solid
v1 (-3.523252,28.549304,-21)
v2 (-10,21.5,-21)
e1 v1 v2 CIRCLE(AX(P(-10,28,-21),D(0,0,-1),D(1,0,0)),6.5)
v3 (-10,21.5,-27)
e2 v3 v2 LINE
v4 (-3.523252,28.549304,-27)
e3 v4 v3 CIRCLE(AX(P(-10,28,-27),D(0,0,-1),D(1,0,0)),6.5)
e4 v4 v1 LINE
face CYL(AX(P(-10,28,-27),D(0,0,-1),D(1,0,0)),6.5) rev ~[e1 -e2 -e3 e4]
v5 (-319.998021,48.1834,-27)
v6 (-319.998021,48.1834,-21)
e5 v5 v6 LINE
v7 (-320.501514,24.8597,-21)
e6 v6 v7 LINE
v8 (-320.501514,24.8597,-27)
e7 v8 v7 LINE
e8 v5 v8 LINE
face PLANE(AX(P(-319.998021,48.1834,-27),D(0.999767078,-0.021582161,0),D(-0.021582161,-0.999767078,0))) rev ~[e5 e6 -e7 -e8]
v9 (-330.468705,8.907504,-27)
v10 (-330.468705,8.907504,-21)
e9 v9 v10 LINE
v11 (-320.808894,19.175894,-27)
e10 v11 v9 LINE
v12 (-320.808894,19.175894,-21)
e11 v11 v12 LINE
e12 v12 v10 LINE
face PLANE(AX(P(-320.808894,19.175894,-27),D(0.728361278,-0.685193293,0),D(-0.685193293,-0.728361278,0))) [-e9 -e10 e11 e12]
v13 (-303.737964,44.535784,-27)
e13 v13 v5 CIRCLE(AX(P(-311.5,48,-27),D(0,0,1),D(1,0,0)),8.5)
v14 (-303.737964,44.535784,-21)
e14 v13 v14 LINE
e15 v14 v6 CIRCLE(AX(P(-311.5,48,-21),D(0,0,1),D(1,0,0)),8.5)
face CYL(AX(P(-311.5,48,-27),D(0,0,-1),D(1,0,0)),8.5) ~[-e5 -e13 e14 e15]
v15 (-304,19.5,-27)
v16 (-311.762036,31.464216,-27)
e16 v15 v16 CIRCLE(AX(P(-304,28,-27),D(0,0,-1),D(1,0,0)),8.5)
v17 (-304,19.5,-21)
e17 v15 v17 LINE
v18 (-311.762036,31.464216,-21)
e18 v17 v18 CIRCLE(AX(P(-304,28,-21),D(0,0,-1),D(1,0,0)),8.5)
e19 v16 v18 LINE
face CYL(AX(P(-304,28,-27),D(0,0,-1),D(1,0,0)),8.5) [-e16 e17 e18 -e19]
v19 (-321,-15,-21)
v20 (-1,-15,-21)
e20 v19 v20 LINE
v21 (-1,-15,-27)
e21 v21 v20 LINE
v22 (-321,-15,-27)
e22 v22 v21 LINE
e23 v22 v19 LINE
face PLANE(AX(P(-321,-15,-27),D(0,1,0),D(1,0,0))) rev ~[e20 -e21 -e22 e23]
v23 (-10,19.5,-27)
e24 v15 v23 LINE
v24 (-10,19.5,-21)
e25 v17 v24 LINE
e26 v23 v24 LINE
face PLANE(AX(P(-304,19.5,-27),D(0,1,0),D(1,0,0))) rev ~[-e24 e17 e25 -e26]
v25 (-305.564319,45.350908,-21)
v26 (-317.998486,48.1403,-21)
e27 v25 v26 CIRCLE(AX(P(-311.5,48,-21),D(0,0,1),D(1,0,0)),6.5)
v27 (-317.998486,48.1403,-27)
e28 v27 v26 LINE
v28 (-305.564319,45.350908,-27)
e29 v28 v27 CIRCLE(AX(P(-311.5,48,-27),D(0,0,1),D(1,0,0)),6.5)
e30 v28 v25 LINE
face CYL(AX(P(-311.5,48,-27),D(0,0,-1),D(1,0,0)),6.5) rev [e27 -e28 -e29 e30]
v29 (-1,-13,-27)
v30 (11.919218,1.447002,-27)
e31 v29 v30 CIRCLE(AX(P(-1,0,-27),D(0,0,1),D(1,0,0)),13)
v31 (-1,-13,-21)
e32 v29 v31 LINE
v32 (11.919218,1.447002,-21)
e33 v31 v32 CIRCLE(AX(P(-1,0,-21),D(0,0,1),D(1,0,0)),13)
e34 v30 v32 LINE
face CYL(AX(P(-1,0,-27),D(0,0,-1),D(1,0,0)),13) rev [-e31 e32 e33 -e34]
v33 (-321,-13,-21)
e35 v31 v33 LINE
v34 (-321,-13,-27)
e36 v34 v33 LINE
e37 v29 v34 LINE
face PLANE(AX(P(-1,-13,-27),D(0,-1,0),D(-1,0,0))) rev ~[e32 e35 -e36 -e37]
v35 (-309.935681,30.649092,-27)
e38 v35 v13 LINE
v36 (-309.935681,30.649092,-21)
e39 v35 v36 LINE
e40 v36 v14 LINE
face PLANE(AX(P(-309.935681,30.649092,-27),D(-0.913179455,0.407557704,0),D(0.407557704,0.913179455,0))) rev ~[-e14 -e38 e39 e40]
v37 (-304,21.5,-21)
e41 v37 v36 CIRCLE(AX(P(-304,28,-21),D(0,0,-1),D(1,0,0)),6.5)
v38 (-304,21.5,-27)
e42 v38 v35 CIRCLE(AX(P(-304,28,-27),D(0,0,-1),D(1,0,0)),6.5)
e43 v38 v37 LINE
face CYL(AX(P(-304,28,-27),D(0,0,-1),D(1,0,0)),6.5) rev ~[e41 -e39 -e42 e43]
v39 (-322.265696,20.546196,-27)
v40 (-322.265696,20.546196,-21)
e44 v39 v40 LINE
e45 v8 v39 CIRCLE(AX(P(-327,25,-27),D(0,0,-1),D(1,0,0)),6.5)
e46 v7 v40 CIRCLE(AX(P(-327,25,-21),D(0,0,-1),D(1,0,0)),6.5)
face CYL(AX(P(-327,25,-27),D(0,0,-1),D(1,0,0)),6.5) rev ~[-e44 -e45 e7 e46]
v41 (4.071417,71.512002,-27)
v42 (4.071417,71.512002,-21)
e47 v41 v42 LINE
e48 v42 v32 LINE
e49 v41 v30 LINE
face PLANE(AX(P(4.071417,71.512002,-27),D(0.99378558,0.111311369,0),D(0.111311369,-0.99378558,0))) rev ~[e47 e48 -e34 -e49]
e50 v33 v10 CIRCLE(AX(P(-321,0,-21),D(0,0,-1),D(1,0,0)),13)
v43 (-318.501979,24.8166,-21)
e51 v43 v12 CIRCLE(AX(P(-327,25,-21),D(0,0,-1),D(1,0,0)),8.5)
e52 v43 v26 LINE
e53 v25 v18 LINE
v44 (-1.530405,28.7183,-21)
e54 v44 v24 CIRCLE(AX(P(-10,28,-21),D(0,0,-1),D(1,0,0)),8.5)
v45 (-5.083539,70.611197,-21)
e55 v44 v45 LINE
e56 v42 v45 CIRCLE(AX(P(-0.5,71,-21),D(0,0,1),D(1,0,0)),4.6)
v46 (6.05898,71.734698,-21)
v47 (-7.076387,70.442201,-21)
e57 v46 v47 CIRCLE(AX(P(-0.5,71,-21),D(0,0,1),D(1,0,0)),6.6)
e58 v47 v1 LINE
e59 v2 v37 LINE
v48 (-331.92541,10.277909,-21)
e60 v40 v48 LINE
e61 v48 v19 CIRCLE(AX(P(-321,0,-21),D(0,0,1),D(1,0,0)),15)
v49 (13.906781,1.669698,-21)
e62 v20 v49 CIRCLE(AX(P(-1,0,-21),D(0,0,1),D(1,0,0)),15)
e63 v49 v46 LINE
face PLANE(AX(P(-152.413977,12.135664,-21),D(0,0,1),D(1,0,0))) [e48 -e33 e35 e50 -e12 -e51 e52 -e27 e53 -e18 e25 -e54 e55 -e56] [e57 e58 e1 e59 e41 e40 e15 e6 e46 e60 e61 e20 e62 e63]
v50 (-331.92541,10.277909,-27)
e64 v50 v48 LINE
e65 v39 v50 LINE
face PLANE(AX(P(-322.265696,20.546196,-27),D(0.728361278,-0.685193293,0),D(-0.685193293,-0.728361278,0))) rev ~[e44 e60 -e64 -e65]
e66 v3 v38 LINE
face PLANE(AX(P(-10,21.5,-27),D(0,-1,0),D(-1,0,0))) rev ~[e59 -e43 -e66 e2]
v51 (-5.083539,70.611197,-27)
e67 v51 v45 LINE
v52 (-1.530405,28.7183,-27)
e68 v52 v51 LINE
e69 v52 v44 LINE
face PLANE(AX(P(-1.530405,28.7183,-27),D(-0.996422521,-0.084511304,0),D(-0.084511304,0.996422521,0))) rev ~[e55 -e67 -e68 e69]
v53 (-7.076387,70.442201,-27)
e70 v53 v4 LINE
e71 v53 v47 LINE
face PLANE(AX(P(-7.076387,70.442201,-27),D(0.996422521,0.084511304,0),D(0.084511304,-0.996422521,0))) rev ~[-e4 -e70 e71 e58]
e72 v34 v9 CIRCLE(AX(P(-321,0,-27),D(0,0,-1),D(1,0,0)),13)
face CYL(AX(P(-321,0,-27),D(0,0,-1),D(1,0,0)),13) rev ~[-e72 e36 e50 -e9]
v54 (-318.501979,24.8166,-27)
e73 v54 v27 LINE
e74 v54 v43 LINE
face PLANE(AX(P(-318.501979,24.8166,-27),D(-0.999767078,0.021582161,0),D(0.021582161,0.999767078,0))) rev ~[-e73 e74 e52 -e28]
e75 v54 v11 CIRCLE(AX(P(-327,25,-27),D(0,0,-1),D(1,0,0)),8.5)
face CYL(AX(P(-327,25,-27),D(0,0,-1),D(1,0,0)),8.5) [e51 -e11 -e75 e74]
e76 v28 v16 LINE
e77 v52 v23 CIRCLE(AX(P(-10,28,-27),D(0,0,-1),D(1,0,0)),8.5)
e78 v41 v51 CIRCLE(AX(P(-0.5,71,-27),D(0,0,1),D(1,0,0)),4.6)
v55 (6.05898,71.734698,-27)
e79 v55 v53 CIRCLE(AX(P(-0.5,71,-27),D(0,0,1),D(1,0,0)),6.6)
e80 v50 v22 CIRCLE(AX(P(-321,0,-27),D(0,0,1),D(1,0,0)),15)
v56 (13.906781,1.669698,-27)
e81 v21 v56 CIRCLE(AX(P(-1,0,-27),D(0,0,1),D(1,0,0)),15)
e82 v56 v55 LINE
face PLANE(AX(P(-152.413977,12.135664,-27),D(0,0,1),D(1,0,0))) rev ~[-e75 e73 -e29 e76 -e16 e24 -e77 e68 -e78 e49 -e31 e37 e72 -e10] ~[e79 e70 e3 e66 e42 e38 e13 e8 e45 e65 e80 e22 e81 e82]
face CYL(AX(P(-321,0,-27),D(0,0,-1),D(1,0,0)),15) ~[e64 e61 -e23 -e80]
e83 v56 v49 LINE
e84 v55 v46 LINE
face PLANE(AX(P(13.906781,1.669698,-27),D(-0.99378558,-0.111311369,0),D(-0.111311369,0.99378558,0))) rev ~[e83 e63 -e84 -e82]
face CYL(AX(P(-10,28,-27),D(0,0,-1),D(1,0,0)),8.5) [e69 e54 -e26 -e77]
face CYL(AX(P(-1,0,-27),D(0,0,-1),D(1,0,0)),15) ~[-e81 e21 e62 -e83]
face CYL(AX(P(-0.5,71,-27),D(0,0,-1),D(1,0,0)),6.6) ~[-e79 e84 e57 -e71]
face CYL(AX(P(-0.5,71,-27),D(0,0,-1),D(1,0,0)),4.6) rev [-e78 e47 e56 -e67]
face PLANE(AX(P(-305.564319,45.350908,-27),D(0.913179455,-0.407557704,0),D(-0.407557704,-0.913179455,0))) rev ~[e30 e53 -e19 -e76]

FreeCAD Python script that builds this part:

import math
import FreeCAD as App
import Part
import Sketcher

V = App.Vector

doc = App.newDocument("Part")
body = doc.addObject("PartDesign::Body", "Body")

# Sketch on XY plane
sketch1 = doc.addObject("Sketcher::SketchObject", "Sketch")
body.addObject(sketch1)
sketch1.AttachmentSupport = (doc.XY_Plane, [""])
sketch1.MapMode = "FlatFace"
sketch1.AttachmentOffset = App.Placement(V(0, 0, -27), App.Rotation())
sketch1.addGeometry(Part.ArcOfCircle(Part.Circle(V(-10, 28, 0), V(0, 0, 1), 6.499952), math.radians(-90), math.radians(4.847752)), False)
sketch1.addGeometry(Part.LineSegment(V(-10, 21.5, 0), V(-304, 21.5, 0)), False)
sketch1.addGeometry(Part.ArcOfCircle(Part.Circle(V(-304, 28, 0), V(0, 0, 1), 6.5), math.radians(155.948817), math.radians(270)), False)
sketch1.addGeometry(Part.LineSegment(V(-309.9357, 30.6491, 0), V(-303.738, 44.5358, 0)), False)
sketch1.addGeometry(Part.ArcOfCircle(Part.Circle(V(-311.5, 48, 0), V(0, 0, 1), 8.49996), math.radians(-24.051326), math.radians(178.76366)), False)
sketch1.addGeometry(Part.LineSegment(V(-319.998, 48.1834, 0), V(-320.5015, 24.8597, 0)), False)
sketch1.addGeometry(Part.ArcOfCircle(Part.Circle(V(-327, 25, 0), V(0, 0, 1), 6.500014), math.radians(-43.251382), math.radians(-1.236801)), False)
sketch1.addGeometry(Part.LineSegment(V(-322.2657, 20.5462, 0), V(-331.9254, 10.2779, 0)), False)
sketch1.addGeometry(Part.ArcOfCircle(Part.Circle(V(-321, 0, 0), V(0, 0, 1), 14.999986), math.radians(136.749138), math.radians(270)), False)
sketch1.addGeometry(Part.LineSegment(V(-321, -15, 0), V(-1, -15, 0)), False)
sketch1.addGeometry(Part.ArcOfCircle(Part.Circle(V(-1, 0, 0), V(0, 0, 1), 15), math.radians(-90), math.radians(6.391021)), False)
sketch1.addGeometry(Part.LineSegment(V(13.9068, 1.6697, 0), V(6.059, 71.7347, 0)), False)
sketch1.addGeometry(Part.ArcOfCircle(Part.Circle(V(-0.5, 71, 0), V(0, 0, 1), 6.60002), math.radians(6.391289), math.radians(184.848135)), False)
sketch1.addGeometry(Part.LineSegment(V(-7.0764, 70.4422, 0), V(-3.5233, 28.5493, 0)), False)
sketch1.addGeometry(Part.ArcOfCircle(Part.Circle(V(-304, 28, 0), V(0, 0, 1), 8.5), math.radians(155.948674), math.radians(270)), False)
sketch1.addGeometry(Part.LineSegment(V(-304, 19.5, 0), V(-10, 19.5, 0)), False)
sketch1.addGeometry(Part.ArcOfCircle(Part.Circle(V(-10, 28, 0), V(0, 0, 1), 8.500005), math.radians(-90), math.radians(4.847609)), False)
sketch1.addGeometry(Part.LineSegment(V(-1.5304, 28.7183, 0), V(-5.0835, 70.6112, 0)), False)
sketch1.addGeometry(Part.ArcOfCircle(Part.Circle(V(-0.5, 71, 0), V(0, 0, 1), 4.599983), math.radians(6.390535), math.radians(184.848565)), False)
sketch1.addGeometry(Part.LineSegment(V(4.0714, 71.512, 0), V(11.9192, 1.447, 0)), False)
sketch1.addGeometry(Part.ArcOfCircle(Part.Circle(V(-1, 0, 0), V(0, 0, 1), 13), math.radians(-90), math.radians(6.390713)), False)
sketch1.addGeometry(Part.LineSegment(V(-1, -13, 0), V(-321, -13, 0)), False)
sketch1.addGeometry(Part.ArcOfCircle(Part.Circle(V(-321, 0, 0), V(0, 0, 1), 13), math.radians(136.749241), math.radians(270)), False)
sketch1.addGeometry(Part.LineSegment(V(-330.4687, 8.9075, 0), V(-320.8089, 19.1759, 0)), False)
sketch1.addGeometry(Part.ArcOfCircle(Part.Circle(V(-327, 25, 0), V(0, 0, 1), 8.499979), math.radians(-43.250465), math.radians(-1.23634)), False)
sketch1.addGeometry(Part.LineSegment(V(-318.502, 24.8166, 0), V(-317.9985, 48.1403, 0)), False)
sketch1.addGeometry(Part.ArcOfCircle(Part.Circle(V(-311.5, 48, 0), V(0, 0, 1), 6.50002), math.radians(-24.051183), math.radians(178.763199)), False)
sketch1.addGeometry(Part.LineSegment(V(-305.5643, 45.3509, 0), V(-311.762, 31.4642, 0)), False)
sketch1.addConstraint(Sketcher.Constraint("Tangent", 0, 1, 1, 1))
sketch1.addConstraint(Sketcher.Constraint("Tangent", 1, 2, 2, 2))
sketch1.addConstraint(Sketcher.Constraint("Tangent", 2, 1, 3, 1))
sketch1.addConstraint(Sketcher.Constraint("Tangent", 3, 2, 4, 1))
sketch1.addConstraint(Sketcher.Constraint("Tangent", 4, 2, 5, 1))
sketch1.addConstraint(Sketcher.Constraint("Tangent", 5, 2, 6, 2))
sketch1.addConstraint(Sketcher.Constraint("Tangent", 6, 1, 7, 1))
sketch1.addConstraint(Sketcher.Constraint("Tangent", 7, 2, 8, 1))
sketch1.addConstraint(Sketcher.Constraint("Tangent", 8, 2, 9, 1))
sketch1.addConstraint(Sketcher.Constraint("Tangent", 9, 2, 10, 1))
sketch1.addConstraint(Sketcher.Constraint("Tangent", 10, 2, 11, 1))
sketch1.addConstraint(Sketcher.Constraint("Tangent", 11, 2, 12, 1))
sketch1.addConstraint(Sketcher.Constraint("Tangent", 12, 2, 13, 1))
sketch1.addConstraint(Sketcher.Constraint("Tangent", 13, 2, 0, 2))
sketch1.addConstraint(Sketcher.Constraint("Tangent", 14, 2, 15, 1))
sketch1.addConstraint(Sketcher.Constraint("Tangent", 15, 2, 16, 1))
sketch1.addConstraint(Sketcher.Constraint("Tangent", 16, 2, 17, 1))
sketch1.addConstraint(Sketcher.Constraint("Tangent", 17, 2, 18, 2))
sketch1.addConstraint(Sketcher.Constraint("Tangent", 18, 1, 19, 1))
sketch1.addConstraint(Sketcher.Constraint("Tangent", 19, 2, 20, 2))
sketch1.addConstraint(Sketcher.Constraint("Tangent", 20, 1, 21, 1))
sketch1.addConstraint(Sketcher.Constraint("Tangent", 21, 2, 22, 2))
sketch1.addConstraint(Sketcher.Constraint("Tangent", 22, 1, 23, 1))
sketch1.addConstraint(Sketcher.Constraint("Tangent", 23, 2, 24, 1))
sketch1.addConstraint(Sketcher.Constraint("Tangent", 24, 2, 25, 1))
sketch1.addConstraint(Sketcher.Constraint("Tangent", 25, 2, 26, 2))
sketch1.addConstraint(Sketcher.Constraint("Tangent", 26, 1, 27, 1))
sketch1.addConstraint(Sketcher.Constraint("Tangent", 27, 2, 14, 1))
sketch1.addConstraint(Sketcher.Constraint("Horizontal", 1))
sketch1.addConstraint(Sketcher.Constraint("Horizontal", 9))
sketch1.addConstraint(Sketcher.Constraint("Horizontal", 15))
sketch1.addConstraint(Sketcher.Constraint("Horizontal", 21))
sketch1.addConstraint(Sketcher.Constraint("Coincident", 14, 3, 2, 3))
sketch1.addConstraint(Sketcher.Constraint("Coincident", 16, 3, 0, 3))
sketch1.addConstraint(Sketcher.Constraint("Coincident", 18, 3, 12, 3))
sketch1.addConstraint(Sketcher.Constraint("Coincident", 20, 3, 10, 3))
sketch1.addConstraint(Sketcher.Constraint("Coincident", 22, 3, 8, 3))
sketch1.addConstraint(Sketcher.Constraint("Coincident", 24, 3, 6, 3))
sketch1.addConstraint(Sketcher.Constraint("Coincident", 26, 3, 4, 3))
sketch1.addConstraint(Sketcher.Constraint("Equal", 0, 2))
sketch1.addConstraint(Sketcher.Constraint("Equal", 2, 6))
sketch1.addConstraint(Sketcher.Constraint("Equal", 8, 10))
sketch1.addConstraint(Sketcher.Constraint("Equal", 4, 14))
sketch1.addConstraint(Sketcher.Constraint("Equal", 16, 24))
sketch1.addConstraint(Sketcher.Constraint("Equal", 6, 26))
sketch1.addConstraint(Sketcher.Constraint("PointOnObject", 8, 3, -1))
sketch1.addConstraint(Sketcher.Constraint("Parallel", 13, 17))
sketch1.addConstraint(Sketcher.Constraint("Parallel", 11, 19))
sketch1.addConstraint(Sketcher.Constraint("Radius", 8, 15.0))
sketch1.addConstraint(Sketcher.Constraint("Radius", 20, 13.0))
sketch1.addConstraint(Sketcher.Constraint("Radius", 0, 6.5))
sketch1.addConstraint(Sketcher.Constraint("Radius", 12, 6.6))
sketch1.addConstraint(Sketcher.Constraint("DistanceX", 1, 2, 1, 1, 294.0))
sketch1.addConstraint(Sketcher.Constraint("DistanceX", 9, 1, 9, 2, 320.0))
sketch1.addConstraint(Sketcher.Constraint("DistanceX", 0, 3, -1, 1, 10.0))
sketch1.addConstraint(Sketcher.Constraint("DistanceY", -1, 1, 0, 3, 28.0))
sketch1.addConstraint(Sketcher.Constraint("DistanceY", -1, 1, 4, 3, 48.0))
sketch1.addConstraint(Sketcher.Constraint("DistanceX", 6, 3, -1, 1, 327.0))
sketch1.addConstraint(Sketcher.Constraint("DistanceY", -1, 1, 6, 3, 25.0))
sketch1.addConstraint(Sketcher.Constraint("DistanceX", 8, 3, -1, 1, 321.0))
sketch1.addConstraint(Sketcher.Constraint("DistanceY", -1, 1, 12, 3, 71.0))
sketch1.addConstraint(Sketcher.Constraint("DistanceX", 4, 3, 12, 3, 311.0))
sketch1.addConstraint(Sketcher.Constraint("DistanceX", 4, 3, -1, 1, 311.5))
pad1 = doc.addObject("PartDesign::Pad", "Pad")
body.addObject(pad1)
pad1.Profile = sketch1
pad1.Length = 6

doc.recompute()
